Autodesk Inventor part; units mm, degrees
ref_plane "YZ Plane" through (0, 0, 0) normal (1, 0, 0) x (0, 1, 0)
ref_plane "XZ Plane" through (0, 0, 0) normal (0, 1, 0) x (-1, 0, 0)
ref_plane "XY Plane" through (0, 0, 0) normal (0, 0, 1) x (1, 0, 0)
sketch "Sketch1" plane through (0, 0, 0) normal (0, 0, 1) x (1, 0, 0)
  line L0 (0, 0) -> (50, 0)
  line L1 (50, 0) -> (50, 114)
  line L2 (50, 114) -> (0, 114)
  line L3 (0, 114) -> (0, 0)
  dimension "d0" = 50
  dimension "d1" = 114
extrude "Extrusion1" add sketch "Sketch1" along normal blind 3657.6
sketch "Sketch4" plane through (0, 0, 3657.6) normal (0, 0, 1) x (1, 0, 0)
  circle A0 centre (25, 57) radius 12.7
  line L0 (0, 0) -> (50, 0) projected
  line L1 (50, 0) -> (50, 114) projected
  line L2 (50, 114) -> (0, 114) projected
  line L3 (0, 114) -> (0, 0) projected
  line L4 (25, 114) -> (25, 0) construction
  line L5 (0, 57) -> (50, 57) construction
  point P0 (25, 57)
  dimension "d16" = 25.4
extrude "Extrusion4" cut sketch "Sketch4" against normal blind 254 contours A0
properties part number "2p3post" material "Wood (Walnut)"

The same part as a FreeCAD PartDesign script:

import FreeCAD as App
import Part
import Sketcher

V = App.Vector
Q = App.Units.Quantity


def add_polygon(sketch, points):
    """Adds a closed chain of lines whose ends are joined by coincident constraints."""
    first, n = sketch.GeometryCount, len(points)
    for a, b in zip(points, points[1:] + points[:1]):
        sketch.addGeometry(Part.LineSegment(App.Vector(*a, 0), App.Vector(*b, 0)), False)
    for i in range(n):
        sketch.addConstraint(Sketcher.Constraint("Coincident", first + i, 2, first + (i + 1) % n, 1))

doc = App.newDocument("Part")
body = doc.addObject("PartDesign::Body", "Body")

# Sketch on XY plane
sketch1 = body.newObject("Sketcher::SketchObject", "Sketch")
sketch1.AttachmentSupport = (doc.getObject("XY_Plane"), [""])
sketch1.MapMode = "FlatFace"
add_polygon(sketch1, [(0, 114), (0, 0), (50, 0), (50, 114)])  # lines 0-3
sketch1.addConstraint([
    Sketcher.Constraint("Vertical", 0),
    Sketcher.Constraint("Horizontal", 1),
    Sketcher.Constraint("Vertical", 2),
    Sketcher.Constraint("Horizontal", 3),
    Sketcher.Constraint("Coincident", 0, 2, -1, 1),
    Sketcher.Constraint("DistanceX", 1, 1, 1, 2, Q("1.9685 in")),
    Sketcher.Constraint("DistanceY", 0, 2, 0, 1, Q("4.4882 in")),
])
pad1 = body.newObject("PartDesign::Pad", "Pad")
pad1.Profile = sketch1
pad1.Length = Q("144 in")

# Sketch on XY plane
sketch2 = body.newObject("Sketcher::SketchObject", "Sketch001")
sketch2.AttachmentSupport = (doc.getObject("XY_Plane"), [""])
sketch2.MapMode = "FlatFace"
sketch2.AttachmentOffset = App.Placement(V(0, 0, 144 * 25.4), App.Rotation())
sketch2.addGeometry(Part.Circle(V(25, 57, 0), V(0, 0, 1), 13), False)
sketch2.addConstraint([
    Sketcher.Constraint("Diameter", 0, Q("1 in")),
    Sketcher.Constraint("DistanceY", -1, 1, 0, 3, Q("2.2441 in")),
    Sketcher.Constraint("DistanceX", -1, 1, 0, 3, 25.0),
])
pocket1 = body.newObject("PartDesign::Pocket", "Pocket")
pocket1.Profile = sketch2
pocket1.Length = Q("10 in")

doc.recompute()
